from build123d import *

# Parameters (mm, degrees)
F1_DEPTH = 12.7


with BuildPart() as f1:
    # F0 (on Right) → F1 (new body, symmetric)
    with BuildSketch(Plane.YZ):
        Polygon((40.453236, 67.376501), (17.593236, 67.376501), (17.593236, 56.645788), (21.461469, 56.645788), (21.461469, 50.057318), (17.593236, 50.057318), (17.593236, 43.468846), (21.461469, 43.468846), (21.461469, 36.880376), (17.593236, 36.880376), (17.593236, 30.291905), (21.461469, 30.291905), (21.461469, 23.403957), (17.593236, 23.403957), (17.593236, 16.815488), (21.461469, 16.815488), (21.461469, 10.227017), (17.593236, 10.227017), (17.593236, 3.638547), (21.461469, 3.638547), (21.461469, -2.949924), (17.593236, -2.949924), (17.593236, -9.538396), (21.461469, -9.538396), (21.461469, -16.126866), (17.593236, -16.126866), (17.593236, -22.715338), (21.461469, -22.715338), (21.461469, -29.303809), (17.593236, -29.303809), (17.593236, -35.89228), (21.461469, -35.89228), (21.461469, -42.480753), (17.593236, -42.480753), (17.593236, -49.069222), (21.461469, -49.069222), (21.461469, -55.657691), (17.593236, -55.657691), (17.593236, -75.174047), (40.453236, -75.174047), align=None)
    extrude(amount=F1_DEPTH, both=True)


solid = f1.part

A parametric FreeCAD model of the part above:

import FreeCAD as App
import Part
import Sketcher
Q = App.Units.Quantity

doc = App.newDocument("Part")
body = doc.addObject("PartDesign::Body", "Body")

sketch1 = body.newObject("Sketcher::SketchObject", "Sketch")
sketch1.AttachmentSupport = (doc.getObject("YZ_Plane"), [""])
sketch1.MapMode = "FlatFace"
sketch1.addGeometry([
    Part.LineSegment(App.Vector(40.453236, 67.376501, 0), App.Vector(17.593236, 67.376501, 0)),
    Part.LineSegment(App.Vector(17.593236, 67.376501, 0), App.Vector(17.593236, 56.645788, 0)),
    Part.LineSegment(App.Vector(17.593236, 56.645788, 0), App.Vector(21.461469, 56.645788, 0)),
    Part.LineSegment(App.Vector(21.461469, 56.645788, 0), App.Vector(21.461469, 50.057318, 0)),
    Part.LineSegment(App.Vector(21.461469, 50.057318, 0), App.Vector(17.593236, 50.057318, 0)),
    Part.LineSegment(App.Vector(17.593236, 50.057318, 0), App.Vector(17.593236, 43.468846, 0)),
    Part.LineSegment(App.Vector(17.593236, 43.468846, 0), App.Vector(21.461469, 43.468846, 0)),
    Part.LineSegment(App.Vector(21.461469, 43.468846, 0), App.Vector(21.461469, 36.880376, 0)),
    Part.LineSegment(App.Vector(21.461469, 36.880376, 0), App.Vector(17.593236, 36.880376, 0)),
    Part.LineSegment(App.Vector(17.593236, 36.880376, 0), App.Vector(17.593236, 30.291905, 0)),
    Part.LineSegment(App.Vector(17.593236, 30.291905, 0), App.Vector(21.461469, 30.291905, 0)),
    Part.LineSegment(App.Vector(21.461469, 30.291905, 0), App.Vector(21.461469, 23.403957, 0)),
    Part.LineSegment(App.Vector(21.461469, 23.403957, 0), App.Vector(17.593236, 23.403957, 0)),
    Part.LineSegment(App.Vector(17.593236, 23.403957, 0), App.Vector(17.593236, 16.815488, 0)),
    Part.LineSegment(App.Vector(17.593236, 16.815488, 0), App.Vector(21.461469, 16.815488, 0)),
    Part.LineSegment(App.Vector(21.461469, 16.815488, 0), App.Vector(21.461469, 10.227017, 0)),
    Part.LineSegment(App.Vector(21.461469, 10.227017, 0), App.Vector(17.593236, 10.227017, 0)),
    Part.LineSegment(App.Vector(17.593236, 10.227017, 0), App.Vector(17.593236, 3.638547, 0)),
    Part.LineSegment(App.Vector(17.593236, 3.638547, 0), App.Vector(21.461469, 3.638547, 0)),
    Part.LineSegment(App.Vector(21.461469, 3.638547, 0), App.Vector(21.461469, -2.949924, 0)),
    Part.LineSegment(App.Vector(21.461469, -2.949924, 0), App.Vector(17.593236, -2.949924, 0)),
    Part.LineSegment(App.Vector(17.593236, -2.949924, 0), App.Vector(17.593236, -9.538396, 0)),
    Part.LineSegment(App.Vector(17.593236, -9.538396, 0), App.Vector(21.461469, -9.538396, 0)),
    Part.LineSegment(App.Vector(21.461469, -9.538396, 0), App.Vector(21.461469, -16.126866, 0)),
    Part.LineSegment(App.Vector(21.461469, -16.126866, 0), App.Vector(17.593236, -16.126866, 0)),
    Part.LineSegment(App.Vector(17.593236, -16.126866, 0), App.Vector(17.593236, -22.715338, 0)),
    Part.LineSegment(App.Vector(17.593236, -22.715338, 0), App.Vector(21.461469, -22.715338, 0)),
    Part.LineSegment(App.Vector(21.461469, -22.715338, 0), App.Vector(21.461469, -29.303809, 0)),
    Part.LineSegment(App.Vector(21.461469, -29.303809, 0), App.Vector(17.593236, -29.303809, 0)),
    Part.LineSegment(App.Vector(17.593236, -29.303809, 0), App.Vector(17.593236, -35.89228, 0)),
    Part.LineSegment(App.Vector(17.593236, -35.89228, 0), App.Vector(21.461469, -35.89228, 0)),
    Part.LineSegment(App.Vector(21.461469, -35.89228, 0), App.Vector(21.461469, -42.480753, 0)),
    Part.LineSegment(App.Vector(21.461469, -42.480753, 0), App.Vector(17.593236, -42.480753, 0)),
    Part.LineSegment(App.Vector(17.593236, -42.480753, 0), App.Vector(17.593236, -49.069222, 0)),
    Part.LineSegment(App.Vector(17.593236, -49.069222, 0), App.Vector(21.461469, -49.069222, 0)),
    Part.LineSegment(App.Vector(21.461469, -49.069222, 0), App.Vector(21.461469, -55.657691, 0)),
    Part.LineSegment(App.Vector(21.461469, -55.657691, 0), App.Vector(17.593236, -55.657691, 0)),
    Part.LineSegment(App.Vector(17.593236, -55.657691, 0), App.Vector(17.593236, -75.174047, 0)),
    Part.LineSegment(App.Vector(17.593236, -75.174047, 0), App.Vector(40.453236, -75.174047, 0)),
    Part.LineSegment(App.Vector(40.453236, -75.174047, 0), App.Vector(40.453236, 67.376501, 0)),
], False)
sketch1.addConstraint([
    Sketcher.Constraint("Coincident", 0, 2, 1, 1),
    Sketcher.Constraint("Coincident", 1, 2, 2, 1),
    Sketcher.Constraint("Coincident", 2, 2, 3, 1),
    Sketcher.Constraint("Coincident", 3, 2, 4, 1),
    Sketcher.Constraint("Coincident", 4, 2, 5, 1),
    Sketcher.Constraint("Coincident", 5, 2, 6, 1),
    Sketcher.Constraint("Coincident", 6, 2, 7, 1),
    Sketcher.Constraint("Coincident", 7, 2, 8, 1),
    Sketcher.Constraint("Coincident", 8, 2, 9, 1),
    Sketcher.Constraint("Coincident", 9, 2, 10, 1),
    Sketcher.Constraint("Coincident", 10, 2, 11, 1),
    Sketcher.Constraint("Coincident", 11, 2, 12, 1),
    Sketcher.Constraint("Coincident", 12, 2, 13, 1),
    Sketcher.Constraint("Coincident", 13, 2, 14, 1),
    Sketcher.Constraint("Coincident", 14, 2, 15, 1),
    Sketcher.Constraint("Coincident", 15, 2, 16, 1),
    Sketcher.Constraint("Coincident", 16, 2, 17, 1),
    Sketcher.Constraint("Coincident", 17, 2, 18, 1),
    Sketcher.Constraint("Coincident", 18, 2, 19, 1),
    Sketcher.Constraint("Coincident", 19, 2, 20, 1),
    Sketcher.Constraint("Coincident", 20, 2, 21, 1),
    Sketcher.Constraint("Coincident", 21, 2, 22, 1),
    Sketcher.Constraint("Coincident", 22, 2, 23, 1),
    Sketcher.Constraint("Coincident", 23, 2, 24, 1),
    Sketcher.Constraint("Coincident", 24, 2, 25, 1),
    Sketcher.Constraint("Coincident", 25, 2, 26, 1),
    Sketcher.Constraint("Coincident", 26, 2, 27, 1),
    Sketcher.Constraint("Coincident", 27, 2, 28, 1),
    Sketcher.Constraint("Coincident", 28, 2, 29, 1),
    Sketcher.Constraint("Coincident", 29, 2, 30, 1),
    Sketcher.Constraint("Coincident", 30, 2, 31, 1),
    Sketcher.Constraint("Coincident", 31, 2, 32, 1),
    Sketcher.Constraint("Coincident", 32, 2, 33, 1),
    Sketcher.Constraint("Coincident", 33, 2, 34, 1),
    Sketcher.Constraint("Coincident", 34, 2, 35, 1),
    Sketcher.Constraint("Coincident", 35, 2, 36, 1),
    Sketcher.Constraint("Coincident", 36, 2, 37, 1),
    Sketcher.Constraint("Coincident", 37, 2, 38, 1),
    Sketcher.Constraint("Coincident", 38, 2, 39, 1),
    Sketcher.Constraint("Coincident", 39, 2, 0, 1),
    Sketcher.Constraint("Horizontal", 0),
    Sketcher.Constraint("Vertical", 1),
    Sketcher.Constraint("Horizontal", 2),
    Sketcher.Constraint("Vertical", 3),
    Sketcher.Constraint("Horizontal", 4),
    Sketcher.Constraint("Vertical", 5),
    Sketcher.Constraint("Horizontal", 6),
    Sketcher.Constraint("Vertical", 7),
    Sketcher.Constraint("Horizontal", 8),
    Sketcher.Constraint("Vertical", 9),
    Sketcher.Constraint("Horizontal", 10),
    Sketcher.Constraint("Vertical", 11),
    Sketcher.Constraint("Horizontal", 12),
    Sketcher.Constraint("Vertical", 13),
    Sketcher.Constraint("Horizontal", 14),
    Sketcher.Constraint("Vertical", 15),
    Sketcher.Constraint("Horizontal", 16),
    Sketcher.Constraint("Vertical", 17),
    Sketcher.Constraint("Horizontal", 18),
    Sketcher.Constraint("Vertical", 19),
    Sketcher.Constraint("Horizontal", 20),
    Sketcher.Constraint("Vertical", 21),
    Sketcher.Constraint("Horizontal", 22),
    Sketcher.Constraint("Vertical", 23),
    Sketcher.Constraint("Horizontal", 24),
    Sketcher.Constraint("Vertical", 25),
    Sketcher.Constraint("Horizontal", 26),
    Sketcher.Constraint("Vertical", 27),
    Sketcher.Constraint("Horizontal", 28),
    Sketcher.Constraint("Vertical", 29),
    Sketcher.Constraint("Horizontal", 30),
    Sketcher.Constraint("Vertical", 31),
    Sketcher.Constraint("Horizontal", 32),
    Sketcher.Constraint("Vertical", 33),
    Sketcher.Constraint("Horizontal", 34),
    Sketcher.Constraint("Vertical", 35),
    Sketcher.Constraint("Horizontal", 36),
    Sketcher.Constraint("Vertical", 37),
    Sketcher.Constraint("Horizontal", 38),
    Sketcher.Constraint("Vertical", 39),
    Sketcher.Constraint("Vertical", 1, 2, 4, 2),
    Sketcher.Constraint("Vertical", 3, 2, 6, 2),
    Sketcher.Constraint("Vertical", 5, 2, 8, 2),
    Sketcher.Constraint("Vertical", 7, 2, 10, 2),
    Sketcher.Constraint("Vertical", 9, 2, 12, 2),
    Sketcher.Constraint("Vertical", 11, 2, 14, 2),
    Sketcher.Constraint("Vertical", 13, 2, 16, 2),
    Sketcher.Constraint("Vertical", 15, 2, 18, 2),
    Sketcher.Constraint("Vertical", 17, 2, 20, 2),
    Sketcher.Constraint("Vertical", 19, 2, 22, 2),
    Sketcher.Constraint("Vertical", 21, 2, 24, 2),
    Sketcher.Constraint("Vertical", 23, 2, 26, 2),
    Sketcher.Constraint("Vertical", 25, 2, 28, 2),
    Sketcher.Constraint("Vertical", 27, 2, 30, 2),
    Sketcher.Constraint("Vertical", 29, 2, 32, 2),
    Sketcher.Constraint("Vertical", 31, 2, 34, 2),
    Sketcher.Constraint("Vertical", 33, 2, 36, 2),
    Sketcher.Constraint("Equal", 3, 7),
    Sketcher.Constraint("Equal", 7, 9),
    Sketcher.Constraint("Equal", 9, 13),
    Sketcher.Constraint("Equal", 13, 15),
    Sketcher.Constraint("Equal", 15, 17),
    Sketcher.Constraint("Equal", 17, 19),
    Sketcher.Constraint("Equal", 19, 21),
    Sketcher.Constraint("Equal", 19, 23),
    Sketcher.Constraint("Equal", 21, 25),
    Sketcher.Constraint("Equal", 25, 27),
    Sketcher.Constraint("Equal", 27, 29),
    Sketcher.Constraint("Equal", 27, 31),
    Sketcher.Constraint("Equal", 29, 33),
    Sketcher.Constraint("Equal", 33, 35),
    Sketcher.Constraint("DistanceX", 0, 2, 0, 1, Q("0.9 in")),
    Sketcher.Constraint("DistanceY", 3, 2, 3, 1, Q("6.58847 mm")),
    Sketcher.Constraint("DistanceY", 11, 2, 11, 1, Q("6.887948 mm")),
    Sketcher.Constraint("DistanceY", 39, 1, 39, 2, Q("142.550548 mm")),
    Sketcher.Constraint("DistanceY", -1, 1, 0, 2, Q("67.376501 mm")),
    Sketcher.Constraint("DistanceX", 2, 1, 2, 2, Q("3.868233 mm")),
    Sketcher.Constraint("DistanceY", 1, 2, 1, 1, Q("10.730713 mm")),
    Sketcher.Constraint("DistanceY", 5, 2, 5, 1, Q("6.588472 mm")),
    Sketcher.Constraint("DistanceX", -1, 1, 2, 2, Q("21.461469 mm")),
])
pad1 = body.newObject("PartDesign::Pad", "Pad")
pad1.Profile = sketch1
pad1.Length = Q("1 in")
pad1.Midplane = True

doc.recompute()
